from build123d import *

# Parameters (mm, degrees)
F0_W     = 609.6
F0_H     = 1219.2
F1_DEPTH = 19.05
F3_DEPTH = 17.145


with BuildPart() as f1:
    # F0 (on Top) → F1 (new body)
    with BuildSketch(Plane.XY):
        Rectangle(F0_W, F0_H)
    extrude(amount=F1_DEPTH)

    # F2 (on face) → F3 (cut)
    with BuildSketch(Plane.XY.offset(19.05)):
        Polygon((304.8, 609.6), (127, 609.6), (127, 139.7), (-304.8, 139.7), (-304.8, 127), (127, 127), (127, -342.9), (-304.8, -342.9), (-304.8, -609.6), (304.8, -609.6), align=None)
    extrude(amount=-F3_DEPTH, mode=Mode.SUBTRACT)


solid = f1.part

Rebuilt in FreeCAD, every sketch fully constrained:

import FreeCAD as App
import Part
import Sketcher
from FreeCAD import Vector
Q = App.Units.Quantity

doc = App.newDocument("Part")
params = doc.addObject("Spreadsheet::Sheet", "Params")
for row, (alias, value) in enumerate([
    ("sketch1_width", "24 in"),
    ("sketch1_height", "48 in"),
    ("pad1_length", "0.75 in"),
    ("sketch2_width", "7 in"),
    ("sketch2_width2", "17 in"),
    ("sketch2_height", "48 in"),
    ("sketch2_height2", "18.5 in"),
    ("sketch2_height3", "0.5 in"),
    ("pocket1_length", "0.675 in"),
], start=1):
    params.set(f"A{row}", alias)
    params.set(f"B{row}", "=" + value)
    params.setAlias(f"B{row}", alias)

body = doc.addObject("PartDesign::Body", "Body")

# Sketch on XY plane
sketch1 = body.newObject("Sketcher::SketchObject", "Sketch")
sketch1.AttachmentSupport = (doc.getObject("XY_Plane"), [""])
sketch1.MapMode = "FlatFace"
sketch1.addGeometry([
    Part.LineSegment(Vector(-304.8, 609.6, 0), Vector(-304.8, -609.6, 0)),
    Part.LineSegment(Vector(-304.8, -609.6, 0), Vector(304.8, -609.6, 0)),
    Part.LineSegment(Vector(304.8, -609.6, 0), Vector(304.8, 609.6, 0)),
    Part.LineSegment(Vector(304.8, 609.6, 0), Vector(-304.8, 609.6, 0)),
], False)
sketch1.addConstraint([
    Sketcher.Constraint("Coincident", 0, 2, 1, 1),
    Sketcher.Constraint("Coincident", 1, 2, 2, 1),
    Sketcher.Constraint("Coincident", 2, 2, 3, 1),
    Sketcher.Constraint("Coincident", 3, 2, 0, 1),
    Sketcher.Constraint("Vertical", 0),
    Sketcher.Constraint("Horizontal", 1),
    Sketcher.Constraint("Vertical", 2),
    Sketcher.Constraint("Horizontal", 3),
    Sketcher.Constraint("Symmetric", 0, 2, 2, 2, -1, 1),
    Sketcher.Constraint("DistanceX", 1, 1, 1, 2, Q("24 in")),
    Sketcher.Constraint("DistanceY", 0, 2, 0, 1, Q("48 in")),
])
sketch1.setExpression("Constraints[9]", "Params.sketch1_width")
sketch1.setExpression("Constraints[10]", "Params.sketch1_height")
pad1 = body.newObject("PartDesign::Pad", "Pad")
pad1.Profile = sketch1
pad1.setExpression("Length", "Params.pad1_length")

# Sketch on XY plane
sketch2 = body.newObject("Sketcher::SketchObject", "Sketch001")
sketch2.AttachmentSupport = (doc.getObject("XY_Plane"), [""])
sketch2.MapMode = "FlatFace"
sketch2.AttachmentOffset = App.Placement(Vector(0, 0, 0.75 * 25.4), App.Rotation())
sketch2.addGeometry([
    Part.LineSegment(Vector(304.8, 609.6, 0), Vector(127, 609.6, 0)),  # 0
    Part.LineSegment(Vector(127, 609.6, 0), Vector(127, 139.7, 0)),  # 1
    Part.LineSegment(Vector(127, 139.7, 0), Vector(-304.8, 139.7, 0)),  # 2
    Part.LineSegment(Vector(-304.8, 139.7, 0), Vector(-304.8, 127, 0)),  # 3
    Part.LineSegment(Vector(-304.8, 127, 0), Vector(127, 127, 0)),  # 4
    Part.LineSegment(Vector(127, 127, 0), Vector(127, -342.9, 0)),  # 5
    Part.LineSegment(Vector(127, -342.9, 0), Vector(-304.8, -342.9, 0)),  # 6
    Part.LineSegment(Vector(-304.8, -342.9, 0), Vector(-304.8, -609.6, 0)),  # 7
    Part.LineSegment(Vector(-304.8, -609.6, 0), Vector(304.8, -609.6, 0)),  # 8
    Part.LineSegment(Vector(304.8, -609.6, 0), Vector(304.8, 609.6, 0)),  # 9
], False)
sketch2.addConstraint([
    Sketcher.Constraint("Coincident", 0, 2, 1, 1),
    Sketcher.Constraint("Coincident", 1, 2, 2, 1),
    Sketcher.Constraint("Coincident", 2, 2, 3, 1),
    Sketcher.Constraint("Coincident", 3, 2, 4, 1),
    Sketcher.Constraint("Coincident", 4, 2, 5, 1),
    Sketcher.Constraint("Coincident", 5, 2, 6, 1),
    Sketcher.Constraint("Coincident", 6, 2, 7, 1),
    Sketcher.Constraint("Coincident", 7, 2, 8, 1),
    Sketcher.Constraint("Coincident", 8, 2, 9, 1),
    Sketcher.Constraint("Coincident", 9, 2, 0, 1),
    Sketcher.Constraint("Horizontal", 0),
    Sketcher.Constraint("Vertical", 1),
    Sketcher.Constraint("Horizontal", 2),
    Sketcher.Constraint("Vertical", 3),
    Sketcher.Constraint("Horizontal", 4),
    Sketcher.Constraint("Vertical", 5),
    Sketcher.Constraint("Horizontal", 6),
    Sketcher.Constraint("Vertical", 7),
    Sketcher.Constraint("Horizontal", 8),
    Sketcher.Constraint("Vertical", 9),
    Sketcher.Constraint("Symmetric", 7, 2, 9, 2, -1, 1),
    Sketcher.Constraint("Vertical", 1, 2, 4, 2),
    Sketcher.Constraint("Vertical", 3, 2, 6, 2),
    Sketcher.Constraint("Equal", 1, 5),
    Sketcher.Constraint("DistanceX", 0, 2, 0, 1, Q("7 in")),
    Sketcher.Constraint("DistanceX", 2, 2, 2, 1, Q("17 in")),
    Sketcher.Constraint("DistanceY", 9, 1, 9, 2, Q("48 in")),
    Sketcher.Constraint("DistanceY", 1, 2, 1, 1, Q("18.5 in")),
    Sketcher.Constraint("DistanceY", 3, 2, 3, 1, Q("0.5 in")),
])
sketch2.setExpression("Constraints[24]", "Params.sketch2_width")
sketch2.setExpression("Constraints[25]", "Params.sketch2_width2")
sketch2.setExpression("Constraints[26]", "Params.sketch2_height")
sketch2.setExpression("Constraints[27]", "Params.sketch2_height2")
sketch2.setExpression("Constraints[28]", "Params.sketch2_height3")
pocket1 = body.newObject("PartDesign::Pocket", "Pocket")
pocket1.Profile = sketch2
pocket1.setExpression("Length", "Params.pocket1_length")

doc.recompute()
